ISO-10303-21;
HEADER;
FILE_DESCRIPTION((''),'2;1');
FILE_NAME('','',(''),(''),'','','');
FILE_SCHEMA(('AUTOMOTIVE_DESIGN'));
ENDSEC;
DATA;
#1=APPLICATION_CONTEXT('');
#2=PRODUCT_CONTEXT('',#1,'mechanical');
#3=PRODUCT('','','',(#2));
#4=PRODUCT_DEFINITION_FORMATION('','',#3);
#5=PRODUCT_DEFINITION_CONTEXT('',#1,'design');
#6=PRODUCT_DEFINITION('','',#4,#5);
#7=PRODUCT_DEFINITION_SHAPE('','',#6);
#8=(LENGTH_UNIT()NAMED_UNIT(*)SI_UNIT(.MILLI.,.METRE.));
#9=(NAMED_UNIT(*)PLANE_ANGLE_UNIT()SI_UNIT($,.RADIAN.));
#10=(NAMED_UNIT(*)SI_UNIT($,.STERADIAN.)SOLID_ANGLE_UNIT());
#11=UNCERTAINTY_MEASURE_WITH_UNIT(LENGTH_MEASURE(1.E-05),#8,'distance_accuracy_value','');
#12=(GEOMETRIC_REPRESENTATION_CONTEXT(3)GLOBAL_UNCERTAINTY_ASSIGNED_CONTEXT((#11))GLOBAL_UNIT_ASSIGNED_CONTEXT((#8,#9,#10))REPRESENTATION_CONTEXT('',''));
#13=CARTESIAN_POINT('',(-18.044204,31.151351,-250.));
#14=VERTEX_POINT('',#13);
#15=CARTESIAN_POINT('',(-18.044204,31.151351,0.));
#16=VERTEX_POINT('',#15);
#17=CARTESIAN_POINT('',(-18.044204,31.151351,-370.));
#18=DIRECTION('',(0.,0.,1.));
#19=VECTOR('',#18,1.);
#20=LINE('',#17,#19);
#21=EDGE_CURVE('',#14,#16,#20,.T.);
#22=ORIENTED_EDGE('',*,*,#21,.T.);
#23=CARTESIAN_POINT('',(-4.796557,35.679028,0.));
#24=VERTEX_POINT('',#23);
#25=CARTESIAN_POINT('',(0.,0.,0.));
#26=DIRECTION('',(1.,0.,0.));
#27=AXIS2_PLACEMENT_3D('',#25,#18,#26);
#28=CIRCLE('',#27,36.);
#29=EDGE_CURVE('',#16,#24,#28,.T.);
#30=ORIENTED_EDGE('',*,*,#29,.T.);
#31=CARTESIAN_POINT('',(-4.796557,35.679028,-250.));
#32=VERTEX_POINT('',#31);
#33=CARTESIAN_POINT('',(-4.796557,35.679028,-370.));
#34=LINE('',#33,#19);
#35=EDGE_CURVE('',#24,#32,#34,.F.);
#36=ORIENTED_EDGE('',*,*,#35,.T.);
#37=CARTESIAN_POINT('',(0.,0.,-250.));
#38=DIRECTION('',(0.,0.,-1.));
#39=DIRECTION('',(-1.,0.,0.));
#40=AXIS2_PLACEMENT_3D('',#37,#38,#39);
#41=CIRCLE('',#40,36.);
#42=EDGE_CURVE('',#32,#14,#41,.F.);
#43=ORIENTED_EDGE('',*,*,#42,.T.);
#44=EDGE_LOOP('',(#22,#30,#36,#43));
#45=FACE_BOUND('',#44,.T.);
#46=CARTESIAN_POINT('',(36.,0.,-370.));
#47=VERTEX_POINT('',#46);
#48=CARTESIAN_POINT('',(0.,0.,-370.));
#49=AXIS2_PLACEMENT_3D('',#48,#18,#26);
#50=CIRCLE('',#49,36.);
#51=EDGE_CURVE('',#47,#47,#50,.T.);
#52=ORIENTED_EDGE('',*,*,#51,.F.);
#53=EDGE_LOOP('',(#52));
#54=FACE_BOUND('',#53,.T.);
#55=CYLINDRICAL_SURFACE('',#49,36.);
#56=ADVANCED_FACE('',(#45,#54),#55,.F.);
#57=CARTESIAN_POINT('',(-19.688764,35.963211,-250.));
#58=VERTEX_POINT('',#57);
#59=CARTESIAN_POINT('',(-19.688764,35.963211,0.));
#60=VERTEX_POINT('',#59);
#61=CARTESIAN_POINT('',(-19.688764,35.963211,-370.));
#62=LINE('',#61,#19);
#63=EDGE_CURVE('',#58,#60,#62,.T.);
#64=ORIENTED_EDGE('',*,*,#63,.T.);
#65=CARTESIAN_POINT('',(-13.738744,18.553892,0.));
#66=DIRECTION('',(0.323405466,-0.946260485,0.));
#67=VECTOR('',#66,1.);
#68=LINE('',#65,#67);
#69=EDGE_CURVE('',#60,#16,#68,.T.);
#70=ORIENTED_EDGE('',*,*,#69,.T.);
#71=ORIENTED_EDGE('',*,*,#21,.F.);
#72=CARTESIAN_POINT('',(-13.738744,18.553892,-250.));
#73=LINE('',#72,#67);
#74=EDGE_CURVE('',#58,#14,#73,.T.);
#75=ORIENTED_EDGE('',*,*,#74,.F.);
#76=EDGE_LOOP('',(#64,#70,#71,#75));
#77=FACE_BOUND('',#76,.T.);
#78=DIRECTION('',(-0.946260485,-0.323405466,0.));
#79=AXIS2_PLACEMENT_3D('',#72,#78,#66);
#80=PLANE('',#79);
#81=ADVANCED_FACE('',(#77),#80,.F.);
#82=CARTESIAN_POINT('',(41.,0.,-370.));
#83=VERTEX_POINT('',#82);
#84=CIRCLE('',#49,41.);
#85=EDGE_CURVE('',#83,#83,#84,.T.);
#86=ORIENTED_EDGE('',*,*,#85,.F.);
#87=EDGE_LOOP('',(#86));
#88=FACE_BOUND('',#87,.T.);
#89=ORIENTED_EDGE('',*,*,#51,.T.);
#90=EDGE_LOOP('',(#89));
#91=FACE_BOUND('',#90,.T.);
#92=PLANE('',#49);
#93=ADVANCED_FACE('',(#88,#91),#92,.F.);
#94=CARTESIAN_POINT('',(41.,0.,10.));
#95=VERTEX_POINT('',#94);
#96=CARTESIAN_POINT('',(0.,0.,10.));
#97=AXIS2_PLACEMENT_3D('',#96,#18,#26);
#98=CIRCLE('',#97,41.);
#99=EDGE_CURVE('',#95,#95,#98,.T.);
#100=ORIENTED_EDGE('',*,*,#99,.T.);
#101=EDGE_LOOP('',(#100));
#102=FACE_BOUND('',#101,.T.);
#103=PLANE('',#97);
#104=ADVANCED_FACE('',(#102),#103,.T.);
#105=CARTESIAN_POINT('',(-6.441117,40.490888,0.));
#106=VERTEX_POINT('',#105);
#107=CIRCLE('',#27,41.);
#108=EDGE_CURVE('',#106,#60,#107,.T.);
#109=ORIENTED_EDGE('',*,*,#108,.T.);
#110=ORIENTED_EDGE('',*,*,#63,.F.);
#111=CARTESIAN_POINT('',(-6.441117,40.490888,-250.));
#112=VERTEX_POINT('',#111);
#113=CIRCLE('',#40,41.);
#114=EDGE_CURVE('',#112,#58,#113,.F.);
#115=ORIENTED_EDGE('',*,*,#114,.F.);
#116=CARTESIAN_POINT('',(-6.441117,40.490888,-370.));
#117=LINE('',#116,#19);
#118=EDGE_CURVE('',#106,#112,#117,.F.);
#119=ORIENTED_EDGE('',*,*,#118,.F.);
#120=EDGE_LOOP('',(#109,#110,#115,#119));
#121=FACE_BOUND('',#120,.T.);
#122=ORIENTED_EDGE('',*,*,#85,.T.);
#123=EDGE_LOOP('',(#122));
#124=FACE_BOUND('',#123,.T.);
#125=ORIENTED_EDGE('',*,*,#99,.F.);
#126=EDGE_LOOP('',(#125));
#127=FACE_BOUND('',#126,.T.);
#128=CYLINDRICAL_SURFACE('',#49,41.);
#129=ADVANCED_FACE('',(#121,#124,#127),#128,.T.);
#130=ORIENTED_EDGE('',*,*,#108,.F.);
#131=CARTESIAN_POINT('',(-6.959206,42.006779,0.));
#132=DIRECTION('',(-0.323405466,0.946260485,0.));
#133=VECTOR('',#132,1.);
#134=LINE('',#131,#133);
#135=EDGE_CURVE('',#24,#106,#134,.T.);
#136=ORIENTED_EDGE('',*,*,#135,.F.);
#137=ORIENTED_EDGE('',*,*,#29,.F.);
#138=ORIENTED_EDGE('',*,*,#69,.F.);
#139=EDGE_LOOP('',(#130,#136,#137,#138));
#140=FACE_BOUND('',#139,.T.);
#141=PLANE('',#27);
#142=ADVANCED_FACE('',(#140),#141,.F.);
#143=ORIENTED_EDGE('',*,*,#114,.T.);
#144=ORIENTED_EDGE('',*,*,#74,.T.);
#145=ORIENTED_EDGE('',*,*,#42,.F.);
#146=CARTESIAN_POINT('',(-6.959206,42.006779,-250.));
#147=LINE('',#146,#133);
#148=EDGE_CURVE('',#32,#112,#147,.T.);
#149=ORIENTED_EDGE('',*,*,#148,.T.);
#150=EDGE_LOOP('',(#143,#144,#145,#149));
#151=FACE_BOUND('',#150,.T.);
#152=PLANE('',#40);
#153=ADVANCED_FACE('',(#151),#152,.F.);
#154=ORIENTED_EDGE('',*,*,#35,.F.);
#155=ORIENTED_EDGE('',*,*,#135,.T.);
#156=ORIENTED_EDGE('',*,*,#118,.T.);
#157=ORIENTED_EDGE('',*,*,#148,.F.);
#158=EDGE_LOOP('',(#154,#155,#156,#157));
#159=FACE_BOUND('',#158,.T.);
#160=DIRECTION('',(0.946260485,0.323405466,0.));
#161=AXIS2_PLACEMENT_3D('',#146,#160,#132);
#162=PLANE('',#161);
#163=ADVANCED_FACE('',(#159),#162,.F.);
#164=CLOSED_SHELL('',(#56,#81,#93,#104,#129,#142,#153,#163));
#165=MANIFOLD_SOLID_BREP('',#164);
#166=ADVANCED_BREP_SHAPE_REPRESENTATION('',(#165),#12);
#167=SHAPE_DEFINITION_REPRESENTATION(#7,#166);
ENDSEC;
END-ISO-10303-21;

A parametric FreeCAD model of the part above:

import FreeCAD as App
import Part
import Sketcher

V = App.Vector


def add_polygon(sketch, points):
    """Adds a closed chain of lines whose ends are joined by coincident constraints."""
    first, n = sketch.GeometryCount, len(points)
    for a, b in zip(points, points[1:] + points[:1]):
        sketch.addGeometry(Part.LineSegment(App.Vector(*a, 0), App.Vector(*b, 0)), False)
    for i in range(n):
        sketch.addConstraint(Sketcher.Constraint("Coincident", first + i, 2, first + (i + 1) % n, 1))

doc = App.newDocument("Part")
params = doc.addObject("Spreadsheet::Sheet", "Params")
for row, (alias, value) in enumerate([
    ("sketch1_diameter", "82 mm"),
    ("sketch1_diameter2", "72 mm"),
    ("pad1_length", "370 mm"),
    ("sketch2_length", "14 mm"),
    ("sketch2_length2", "20 mm"),
    ("pad2_length", "110 mm"),
    ("sketch3_length", "14 mm"),
    ("sketch3_length2", "20 mm"),
    ("pad3_length", "250 mm"),
    ("sketch4_diameter", "82 mm"),
    ("pad4_length", "10 mm"),
], start=1):
    params.set(f"A{row}", alias)
    params.set(f"B{row}", "=" + value)
    params.setAlias(f"B{row}", alias)

body = doc.addObject("PartDesign::Body", "Body")

# Sketch on XY plane
sketch1 = doc.addObject("Sketcher::SketchObject", "Sketch")
body.addObject(sketch1)
sketch1.AttachmentSupport = (doc.XY_Plane, [""])
sketch1.MapMode = "FlatFace"
sketch1.addGeometry([
    Part.Circle(V(0, 0, 0), V(0, 0, 1), 41),
    Part.Circle(V(0, 0, 0), V(0, 0, 1), 36),
], False)
sketch1.addConstraint([
    Sketcher.Constraint("Coincident", 0, 3, -1, 1),
    Sketcher.Constraint("Coincident", 1, 3, -1, 1),
    Sketcher.Constraint("Diameter", 0, 82.0),
    Sketcher.Constraint("Diameter", 1, 72.0),
])
sketch1.setExpression("Constraints[2]", "Params.sketch1_diameter")
sketch1.setExpression("Constraints[3]", "Params.sketch1_diameter2")
pad1 = doc.addObject("PartDesign::Pad", "Pad")
body.addObject(pad1)
pad1.Profile = sketch1
pad1.setExpression("Length", "Params.pad1_length")
pad1.Reversed = True
body2 = doc.addObject("PartDesign::Body", "Body001")

# Sketch on XY plane
sketch2 = doc.addObject("Sketcher::SketchObject", "Sketch001")
body2.addObject(sketch2)
sketch2.AttachmentSupport = (doc.getObject("XY_Plane001"), [""])
sketch2.MapMode = "FlatFace"
add_polygon(sketch2, [(-6.959206, 42.006779), (-20.206853, 37.479102), (-13.738744, 18.553892), (-0.491097, 23.081569)])  # lines 0-3
sketch2.addConstraint([
    Sketcher.Constraint("Perpendicular", 0, 1),
    Sketcher.Constraint("Perpendicular", 1, 2),
    Sketcher.Constraint("Perpendicular", 2, 3),
    Sketcher.Constraint("Distance", 0, 14.0),
    Sketcher.Constraint("Distance", 1, 20.0),
    Sketcher.Constraint("DistanceY", -1, 1, 2, 2, 23.081569),
    Sketcher.Constraint("DistanceY", -1, 1, 3, 2, 42.006779),
    Sketcher.Constraint("DistanceX", 0, 2, -1, 1, 20.206853),
])
sketch2.setExpression("Constraints[7]", "Params.sketch2_length")
sketch2.setExpression("Constraints[8]", "Params.sketch2_length2")
pad2 = doc.addObject("PartDesign::Pad", "Pad001")
body2.addObject(pad2)
pad2.Profile = sketch2
pad2.setExpression("Length", "Params.pad2_length")
pad2.Reversed = True
body3 = doc.addObject("PartDesign::Body", "Body002")

# Sketch on XY plane
sketch3 = doc.addObject("Sketcher::SketchObject", "Sketch002")
body3.addObject(sketch3)
sketch3.AttachmentSupport = (doc.getObject("XY_Plane002"), [""])
sketch3.MapMode = "FlatFace"
add_polygon(sketch3, [(-6.959206, 42.006779), (-20.206853, 37.479102), (-13.738744, 18.553892), (-0.491097, 23.081569)])  # lines 0-3
sketch3.addConstraint([
    Sketcher.Constraint("Perpendicular", 0, 1),
    Sketcher.Constraint("Perpendicular", 1, 2),
    Sketcher.Constraint("Perpendicular", 2, 3),
    Sketcher.Constraint("Distance", 0, 14.0),
    Sketcher.Constraint("Distance", 1, 20.0),
    Sketcher.Constraint("DistanceY", -1, 1, 2, 2, 23.081569),
    Sketcher.Constraint("DistanceY", -1, 1, 3, 2, 42.006779),
    Sketcher.Constraint("DistanceX", 0, 2, -1, 1, 20.206853),
])
sketch3.setExpression("Constraints[7]", "Params.sketch3_length")
sketch3.setExpression("Constraints[8]", "Params.sketch3_length2")
pad3 = doc.addObject("PartDesign::Pad", "Pad002")
body3.addObject(pad3)
pad3.Profile = sketch3
pad3.setExpression("Length", "Params.pad3_length")
pad3.Reversed = True
doc.recompute()

body4 = doc.addObject("PartDesign::Body", "Body003")
body4.BaseFeature = body3
boolean = doc.addObject("PartDesign::Boolean", "Boolean")
body.addObject(boolean)
boolean.Type = "Cut"
boolean.addObjects([body4])
doc.recompute()

# Sketch on XY plane
sketch4 = doc.addObject("Sketcher::SketchObject", "Sketch003")
body.addObject(sketch4)
sketch4.AttachmentSupport = (doc.XY_Plane, [""])
sketch4.MapMode = "FlatFace"
sketch4.AttachmentOffset = App.Placement(V(0, 0, 10), App.Rotation())
sketch4.addGeometry(Part.Circle(V(0, 0, 0), V(0, 0, 1), 41), False)
sketch4.addConstraint([
    Sketcher.Constraint("Coincident", 0, 3, -1, 1),
    Sketcher.Constraint("Diameter", 0, 82.0),
])
sketch4.setExpression("Constraints[1]", "Params.sketch4_diameter")
pad4 = doc.addObject("PartDesign::Pad", "Pad003")
body.addObject(pad4)
pad4.Profile = sketch4
pad4.setExpression("Length", "Params.pad4_length")
pad4.Reversed = True
doc.recompute()

boolean2 = doc.addObject("PartDesign::Boolean", "Boolean001")
body2.addObject(boolean2)
boolean2.Type = "Cut"
boolean2.addObjects([body3])

doc.recompute()
